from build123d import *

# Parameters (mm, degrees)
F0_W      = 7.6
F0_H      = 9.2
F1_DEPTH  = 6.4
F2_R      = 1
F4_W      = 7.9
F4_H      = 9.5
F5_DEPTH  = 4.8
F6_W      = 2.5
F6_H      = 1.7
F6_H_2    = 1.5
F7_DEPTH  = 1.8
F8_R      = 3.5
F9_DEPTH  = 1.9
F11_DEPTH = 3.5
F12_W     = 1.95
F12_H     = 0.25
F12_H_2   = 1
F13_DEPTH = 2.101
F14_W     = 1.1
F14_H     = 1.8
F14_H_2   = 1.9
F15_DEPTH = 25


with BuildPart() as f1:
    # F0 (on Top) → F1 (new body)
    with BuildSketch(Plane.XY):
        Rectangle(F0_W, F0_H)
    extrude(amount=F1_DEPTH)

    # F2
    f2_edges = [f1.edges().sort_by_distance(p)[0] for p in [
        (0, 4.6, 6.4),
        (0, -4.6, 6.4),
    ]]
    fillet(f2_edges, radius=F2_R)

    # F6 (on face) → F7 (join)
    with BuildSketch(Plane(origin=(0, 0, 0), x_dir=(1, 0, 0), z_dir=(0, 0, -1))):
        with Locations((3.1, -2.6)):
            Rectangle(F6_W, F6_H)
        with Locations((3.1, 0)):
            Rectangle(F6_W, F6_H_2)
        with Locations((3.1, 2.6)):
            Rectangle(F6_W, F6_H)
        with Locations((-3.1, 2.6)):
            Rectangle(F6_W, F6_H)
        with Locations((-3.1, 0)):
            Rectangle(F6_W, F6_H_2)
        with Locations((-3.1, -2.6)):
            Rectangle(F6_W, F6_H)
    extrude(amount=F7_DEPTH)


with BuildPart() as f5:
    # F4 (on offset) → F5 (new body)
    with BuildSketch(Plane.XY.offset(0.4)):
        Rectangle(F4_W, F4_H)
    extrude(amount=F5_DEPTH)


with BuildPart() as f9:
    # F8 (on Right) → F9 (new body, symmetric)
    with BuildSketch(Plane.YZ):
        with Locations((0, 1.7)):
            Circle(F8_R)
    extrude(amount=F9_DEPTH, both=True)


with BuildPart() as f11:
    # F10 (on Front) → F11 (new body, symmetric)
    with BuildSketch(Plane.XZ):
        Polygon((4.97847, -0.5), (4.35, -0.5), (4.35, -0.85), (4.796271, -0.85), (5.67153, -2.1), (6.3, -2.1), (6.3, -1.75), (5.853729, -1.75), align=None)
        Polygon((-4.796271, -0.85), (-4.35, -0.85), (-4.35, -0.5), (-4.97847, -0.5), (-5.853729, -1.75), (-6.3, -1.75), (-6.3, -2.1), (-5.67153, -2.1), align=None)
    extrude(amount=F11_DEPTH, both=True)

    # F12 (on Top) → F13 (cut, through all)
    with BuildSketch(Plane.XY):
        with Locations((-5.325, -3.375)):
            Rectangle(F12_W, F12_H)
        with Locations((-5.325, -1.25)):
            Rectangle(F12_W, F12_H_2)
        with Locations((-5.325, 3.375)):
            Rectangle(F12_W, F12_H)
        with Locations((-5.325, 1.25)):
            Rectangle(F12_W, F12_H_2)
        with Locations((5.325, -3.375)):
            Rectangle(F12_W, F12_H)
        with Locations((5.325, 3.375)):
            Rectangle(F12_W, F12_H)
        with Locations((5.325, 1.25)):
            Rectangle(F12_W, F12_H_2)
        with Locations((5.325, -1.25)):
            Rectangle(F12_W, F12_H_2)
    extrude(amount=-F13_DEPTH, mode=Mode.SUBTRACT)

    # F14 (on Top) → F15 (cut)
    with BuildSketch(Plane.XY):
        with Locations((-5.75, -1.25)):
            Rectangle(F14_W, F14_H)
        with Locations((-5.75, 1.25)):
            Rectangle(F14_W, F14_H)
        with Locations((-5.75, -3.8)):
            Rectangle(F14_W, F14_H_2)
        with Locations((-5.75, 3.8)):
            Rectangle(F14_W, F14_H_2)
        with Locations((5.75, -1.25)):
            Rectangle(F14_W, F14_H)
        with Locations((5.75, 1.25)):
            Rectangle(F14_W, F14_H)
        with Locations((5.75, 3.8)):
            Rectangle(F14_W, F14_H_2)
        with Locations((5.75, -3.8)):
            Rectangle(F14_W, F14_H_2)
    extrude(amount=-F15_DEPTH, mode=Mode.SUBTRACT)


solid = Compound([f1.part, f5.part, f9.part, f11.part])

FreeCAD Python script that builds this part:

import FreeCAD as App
import Part
import Sketcher

V = App.Vector
Q = App.Units.Quantity


def edges_at(feature, points):
    """Names of the edges that pass closest to the given points."""
    edges = feature.Shape.Edges
    near = lambda p: min(range(len(edges)), key=lambda i: edges[i].distToShape(Part.Vertex(*p))[0])
    return sorted({f"Edge{near(p) + 1}" for p in points})


def add_polygon(sketch, points):
    """Adds a closed chain of lines whose ends are joined by coincident constraints."""
    first, n = sketch.GeometryCount, len(points)
    for a, b in zip(points, points[1:] + points[:1]):
        sketch.addGeometry(Part.LineSegment(App.Vector(*a, 0), App.Vector(*b, 0)), False)
    for i in range(n):
        sketch.addConstraint(Sketcher.Constraint("Coincident", first + i, 2, first + (i + 1) % n, 1))

doc = App.newDocument("Part")
body = doc.addObject("PartDesign::Body", "Body")

sketch1 = body.newObject("Sketcher::SketchObject", "Sketch")
sketch1.AttachmentSupport = (doc.getObject("XY_Plane"), [""])
sketch1.MapMode = "FlatFace"
add_polygon(sketch1, [(-4, 5), (-4, -5), (4, -5), (4, 5)])
sketch1.addConstraint([
    Sketcher.Constraint("Vertical", 0),
    Sketcher.Constraint("Horizontal", 1),
    Sketcher.Constraint("Vertical", 2),
    Sketcher.Constraint("Horizontal", 3),
    Sketcher.Constraint("Symmetric", 0, 2, 2, 2, -1, 1),
    Sketcher.Constraint("DistanceX", 1, 1, 1, 2, 7.6),
    Sketcher.Constraint("DistanceY", 0, 2, 0, 1, 9.2),
])
pad1 = body.newObject("PartDesign::Pad", "Pad")
pad1.Profile = sketch1
pad1.Length = 6.4
doc.recompute()

fillet = body.newObject("PartDesign::Fillet", "Fillet")
fillet.Base = (pad1, edges_at(pad1, [(0, 4.6, 6.4), (0, -4.6, 6.4)]))
fillet.Radius = 1

sketch2 = body.newObject("Sketcher::SketchObject", "Sketch001")
sketch2.AttachmentSupport = (doc.getObject("XY_Plane"), [""])
sketch2.MapMode = "FlatFace"
add_polygon(sketch2, [(1.9, 1.8), (1.9, 3.5), (4.3, 3.5), (4.3, 1.8)])
add_polygon(sketch2, [(1.9, -0.8), (1.9, 0.8), (4.3, 0.8), (4.3, -0.8)])
add_polygon(sketch2, [(1.9, -3.5), (1.9, -1.8), (4.3, -1.8), (4.3, -3.5)])
add_polygon(sketch2, [(-4.3, -3.5), (-4.3, -1.8), (-1.9, -1.8), (-1.9, -3.5)])
add_polygon(sketch2, [(-4.3, -0.8), (-4.3, 0.8), (-1.9, 0.8), (-1.9, -0.8)])
add_polygon(sketch2, [(-4.3, 1.8), (-4.3, 3.5), (-1.9, 3.5), (-1.9, 1.8)])
sketch2.addConstraint([
    Sketcher.Constraint("Vertical", 0),
    Sketcher.Constraint("Horizontal", 1),
    Sketcher.Constraint("Vertical", 2),
    Sketcher.Constraint("Horizontal", 3),
    Sketcher.Constraint("Vertical", 4),
    Sketcher.Constraint("Horizontal", 5),
    Sketcher.Constraint("Vertical", 6),
    Sketcher.Constraint("Horizontal", 7),
    Sketcher.Constraint("Vertical", 8),
    Sketcher.Constraint("Horizontal", 9),
    Sketcher.Constraint("Vertical", 10),
    Sketcher.Constraint("Horizontal", 11),
    Sketcher.Constraint("Vertical", 12),
    Sketcher.Constraint("Horizontal", 13),
    Sketcher.Constraint("Vertical", 14),
    Sketcher.Constraint("Horizontal", 15),
    Sketcher.Constraint("Vertical", 16),
    Sketcher.Constraint("Horizontal", 17),
    Sketcher.Constraint("Vertical", 18),
    Sketcher.Constraint("Horizontal", 19),
    Sketcher.Constraint("Vertical", 20),
    Sketcher.Constraint("Horizontal", 21),
    Sketcher.Constraint("Vertical", 22),
    Sketcher.Constraint("Horizontal", 23),
    Sketcher.Constraint("Symmetric", 2, 2, 12, 2, -1, 1),
    Sketcher.Constraint("Symmetric", 0, 2, 14, 2, -1, 1),
    Sketcher.Constraint("Symmetric", 6, 2, 16, 2, -1, 1),
    Sketcher.Constraint("Symmetric", 4, 2, 18, 2, -1, 1),
    Sketcher.Constraint("Symmetric", 10, 2, 20, 2, -1, 1),
    Sketcher.Constraint("Symmetric", 8, 2, 22, 2, -1, 1),
    Sketcher.Constraint("Symmetric", 9, 2, 12, 2, -2),
    Sketcher.Constraint("Symmetric", 11, 2, 14, 2, -2),
    Sketcher.Constraint("Horizontal", 5, 2, 16, 2),
    Sketcher.Constraint("Vertical", 3, 2, 4, 2),
    Sketcher.Constraint("Vertical", 2, 2, 5, 2),
    Sketcher.Constraint("DistanceX", 1, 1, 1, 2, 2.5),
    Sketcher.Constraint("DistanceY", 0, 1, 0, 2, 1.7),
    Sketcher.Constraint("DistanceY", 4, 1, 4, 2, 1.5),
    Sketcher.Constraint("DistanceY", 4, 2, 3, 2, 1.0),
    Sketcher.Constraint("DistanceX", 12, 2, 8, 2, 6.2),
])
pad2 = body.newObject("PartDesign::Pad", "Pad001")
pad2.Profile = sketch2
pad2.Length = 1.8
pad2.Reversed = True
body2 = doc.addObject("PartDesign::Body", "Body001")

sketch3 = body2.newObject("Sketcher::SketchObject", "Sketch002")
sketch3.AttachmentSupport = (doc.getObject("XY_Plane001"), [""])
sketch3.MapMode = "FlatFace"
sketch3.AttachmentOffset = App.Placement(V(0, 0, 0.4), App.Rotation())
add_polygon(sketch3, [(-4, 5), (-4, -5), (4, -5), (4, 5)])
sketch3.addConstraint([
    Sketcher.Constraint("Vertical", 0),
    Sketcher.Constraint("Horizontal", 1),
    Sketcher.Constraint("Vertical", 2),
    Sketcher.Constraint("Horizontal", 3),
    Sketcher.Constraint("Symmetric", 0, 2, 2, 2, -1, 1),
    Sketcher.Constraint("DistanceX", 1, 1, 1, 2, 7.9),
    Sketcher.Constraint("DistanceY", 0, 2, 0, 1, 9.5),
])
pad3 = body2.newObject("PartDesign::Pad", "Pad002")
pad3.Profile = sketch3
pad3.Length = 4.8
body3 = doc.addObject("PartDesign::Body", "Body002")

sketch4 = body3.newObject("Sketcher::SketchObject", "Sketch003")
sketch4.AttachmentSupport = (doc.getObject("YZ_Plane002"), [""])
sketch4.MapMode = "FlatFace"
sketch4.addGeometry(Part.Circle(V(0, 1.7, 0), V(0, 0, 1), 3.5), False)
sketch4.addConstraint([
    Sketcher.Constraint("PointOnObject", 0, 3, -2),
    Sketcher.Constraint("Diameter", 0, 7.0),
    Sketcher.Constraint("DistanceY", -1, 1, 0, 3, 1.7),
])
pad4 = body3.newObject("PartDesign::Pad", "Pad003")
pad4.Profile = sketch4
pad4.Length = 3.8
pad4.Midplane = True
body4 = doc.addObject("PartDesign::Body", "Body003")
body4.AllowCompound = True

sketch5 = body4.newObject("Sketcher::SketchObject", "Sketch004")
sketch5.AttachmentSupport = (doc.getObject("XZ_Plane003"), [""])
sketch5.MapMode = "FlatFace"
add_polygon(sketch5, [(4.98, -0.5), (4.35, -0.5), (4.35, -0.85), (4.8, -0.85), (5.67, -2.1), (6.3, -2.1), (6.3, -1.75), (5.85, -1.75)])
add_polygon(sketch5, [(-4.8, -0.85), (-4.35, -0.85), (-4.35, -0.5), (-4.98, -0.5), (-5.85, -1.75), (-6.3, -1.75), (-6.3, -2.1), (-5.67, -2.1)])
sketch5.addConstraint([
    Sketcher.Constraint("Horizontal", 0),
    Sketcher.Constraint("Vertical", 1),
    Sketcher.Constraint("Horizontal", 2),
    Sketcher.Constraint("Horizontal", 4),
    Sketcher.Constraint("Vertical", 5),
    Sketcher.Constraint("Horizontal", 6),
    Sketcher.Constraint("Horizontal", 8),
    Sketcher.Constraint("Vertical", 9),
    Sketcher.Constraint("Horizontal", 10),
    Sketcher.Constraint("Horizontal", 12),
    Sketcher.Constraint("Vertical", 13),
    Sketcher.Constraint("Horizontal", 14),
    Sketcher.Constraint("Symmetric", 1, 2, 8, 2, -2),
    Sketcher.Constraint("Symmetric", 7, 2, 10, 2, -2),
    Sketcher.Constraint("Symmetric", 6, 2, 11, 2, -2),
    Sketcher.Constraint("Symmetric", 4, 2, 13, 2, -2),
    Sketcher.Constraint("Parallel", 3, 7),
    Sketcher.Constraint("Parallel", 11, 15),
    Sketcher.Constraint("Equal", 0, 4),
    Sketcher.Constraint("Equal", 2, 6),
    Sketcher.Constraint("Equal", 6, 8),
    Sketcher.Constraint("Angle", 3, Q("-55.000013 deg")),
    Sketcher.Constraint("DistanceY", 1, 2, 1, 1, 0.35),
    Sketcher.Constraint("DistanceY", 0, 2, -1, 1, 0.5),
    Sketcher.Constraint("DistanceY", 3, 2, -1, 1, 2.1),
    Sketcher.Constraint("DistanceX", -1, 1, 4, 2, 6.3),
    Sketcher.Constraint("DistanceX", 8, 2, 1, 2, 8.7),
    Sketcher.Constraint("DistanceX", 0, 2, 0, 1, 0.62847),
])
pad5 = body4.newObject("PartDesign::Pad", "Pad004")
pad5.Profile = sketch5
pad5.Length = 7
pad5.Midplane = True

sketch6 = body4.newObject("Sketcher::SketchObject", "Sketch005")
sketch6.AttachmentSupport = (doc.getObject("XY_Plane003"), [""])
sketch6.MapMode = "FlatFace"
add_polygon(sketch6, [(-6.3, -3.25), (-6.3, -3.5), (-4.35, -3.5), (-4.35, -3.25)])
add_polygon(sketch6, [(-6.3, -0.75), (-6.3, -1.75), (-4.35, -1.75), (-4.35, -0.75)])
add_polygon(sketch6, [(-6.3, 3.5), (-6.3, 3.25), (-4.35, 3.25), (-4.35, 3.5)])
add_polygon(sketch6, [(-6.3, 1.75), (-6.3, 0.75), (-4.35, 0.75), (-4.35, 1.75)])
add_polygon(sketch6, [(4.35, -3.25), (4.35, -3.5), (6.3, -3.5), (6.3, -3.25)])
add_polygon(sketch6, [(4.35, 3.5), (4.35, 3.25), (6.3, 3.25), (6.3, 3.5)])
add_polygon(sketch6, [(4.35, 1.75), (4.35, 0.75), (6.3, 0.75), (6.3, 1.75)])
add_polygon(sketch6, [(4.35, -0.75), (4.35, -1.75), (6.3, -1.75), (6.3, -0.75)])
sketch6.addConstraint([
    Sketcher.Constraint("Vertical", 0),
    Sketcher.Constraint("Horizontal", 1),
    Sketcher.Constraint("Vertical", 2),
    Sketcher.Constraint("Horizontal", 3),
    Sketcher.Constraint("Vertical", 4),
    Sketcher.Constraint("Horizontal", 5),
    Sketcher.Constraint("Vertical", 6),
    Sketcher.Constraint("Horizontal", 7),
    Sketcher.Constraint("Vertical", 8),
    Sketcher.Constraint("Horizontal", 9),
    Sketcher.Constraint("Vertical", 10),
    Sketcher.Constraint("Horizontal", 11),
    Sketcher.Constraint("Vertical", 12),
    Sketcher.Constraint("Horizontal", 13),
    Sketcher.Constraint("Vertical", 14),
    Sketcher.Constraint("Horizontal", 15),
    Sketcher.Constraint("Vertical", 16),
    Sketcher.Constraint("Horizontal", 17),
    Sketcher.Constraint("Vertical", 18),
    Sketcher.Constraint("Horizontal", 19),
    Sketcher.Constraint("Vertical", 20),
    Sketcher.Constraint("Horizontal", 21),
    Sketcher.Constraint("Vertical", 22),
    Sketcher.Constraint("Horizontal", 23),
    Sketcher.Constraint("Vertical", 24),
    Sketcher.Constraint("Horizontal", 25),
    Sketcher.Constraint("Vertical", 26),
    Sketcher.Constraint("Horizontal", 27),
    Sketcher.Constraint("Vertical", 28),
    Sketcher.Constraint("Horizontal", 29),
    Sketcher.Constraint("Vertical", 30),
    Sketcher.Constraint("Horizontal", 31),
    Sketcher.Constraint("Symmetric", 10, 2, 16, 2, -1, 1),
    Sketcher.Constraint("Symmetric", 8, 2, 18, 2, -1, 1),
    Sketcher.Constraint("Symmetric", 2, 2, 20, 2, -1, 1),
    Sketcher.Constraint("Symmetric", 0, 2, 22, 2, -1, 1),
    Sketcher.Constraint("Symmetric", 6, 2, 24, 2, -1, 1),
    Sketcher.Constraint("Symmetric", 4, 2, 26, 2, -1, 1),
    Sketcher.Constraint("Symmetric", 14, 2, 28, 2, -1, 1),
    Sketcher.Constraint("Symmetric", 12, 2, 30, 2, -1, 1),
    Sketcher.Constraint("Symmetric", 1, 2, 16, 2, -2),
    Sketcher.Constraint("Symmetric", 3, 2, 18, 2, -2),
    Sketcher.Constraint("Symmetric", 13, 2, 24, 2, -2),
    Sketcher.Constraint("Symmetric", 15, 2, 26, 2, -2),
    Sketcher.Constraint("Vertical", 3, 2, 4, 2),
    Sketcher.Constraint("Vertical", 2, 2, 5, 2),
    Sketcher.Constraint("DistanceY", 4, 2, 4, 1, 1.0),
    Sketcher.Constraint("DistanceY", 7, 2, 8, 2, 4.0),
    Sketcher.Constraint("DistanceY", 17, 2, 22, 2, 7.0),
    Sketcher.Constraint("DistanceX", 1, 1, 1, 2, 1.95),
    Sketcher.Constraint("DistanceY", 0, 2, 0, 1, 0.25),
    Sketcher.Constraint("DistanceX", 0, 2, -1, 1, 6.3),
])
pocket1 = body4.newObject("PartDesign::Pocket", "Pocket")
pocket1.Profile = sketch6
pocket1.Type = "ThroughAll"

sketch7 = body4.newObject("Sketcher::SketchObject", "Sketch006")
sketch7.AttachmentSupport = (doc.getObject("XY_Plane003"), [""])
sketch7.MapMode = "FlatFace"
add_polygon(sketch7, [(-6.3, -0.3), (-6.3, -2.1), (-5.2, -2.1), (-5.2, -0.3)])
add_polygon(sketch7, [(-6.3, 2.1), (-6.3, 0.3), (-5.2, 0.3), (-5.2, 2.1)])
add_polygon(sketch7, [(-6.3, -2.9), (-6.3, -4.8), (-5.2, -4.8), (-5.2, -2.9)])
add_polygon(sketch7, [(-6.3, 4.8), (-6.3, 2.9), (-5.2, 2.9), (-5.2, 4.8)])
add_polygon(sketch7, [(5.2, -0.3), (5.2, -2.1), (6.3, -2.1), (6.3, -0.3)])
add_polygon(sketch7, [(5.2, 2.1), (5.2, 0.3), (6.3, 0.3), (6.3, 2.1)])
add_polygon(sketch7, [(5.2, 4.8), (5.2, 2.9), (6.3, 2.9), (6.3, 4.8)])
add_polygon(sketch7, [(5.2, -2.9), (5.2, -4.8), (6.3, -4.8), (6.3, -2.9)])
sketch7.addConstraint([
    Sketcher.Constraint("Vertical", 0),
    Sketcher.Constraint("Horizontal", 1),
    Sketcher.Constraint("Vertical", 2),
    Sketcher.Constraint("Horizontal", 3),
    Sketcher.Constraint("Vertical", 4),
    Sketcher.Constraint("Horizontal", 5),
    Sketcher.Constraint("Vertical", 6),
    Sketcher.Constraint("Horizontal", 7),
    Sketcher.Constraint("Vertical", 8),
    Sketcher.Constraint("Horizontal", 9),
    Sketcher.Constraint("Vertical", 10),
    Sketcher.Constraint("Horizontal", 11),
    Sketcher.Constraint("Vertical", 12),
    Sketcher.Constraint("Horizontal", 13),
    Sketcher.Constraint("Vertical", 14),
    Sketcher.Constraint("Horizontal", 15),
    Sketcher.Constraint("Vertical", 16),
    Sketcher.Constraint("Horizontal", 17),
    Sketcher.Constraint("Vertical", 18),
    Sketcher.Constraint("Horizontal", 19),
    Sketcher.Constraint("Vertical", 20),
    Sketcher.Constraint("Horizontal", 21),
    Sketcher.Constraint("Vertical", 22),
    Sketcher.Constraint("Horizontal", 23),
    Sketcher.Constraint("Vertical", 24),
    Sketcher.Constraint("Horizontal", 25),
    Sketcher.Constraint("Vertical", 26),
    Sketcher.Constraint("Horizontal", 27),
    Sketcher.Constraint("Vertical", 28),
    Sketcher.Constraint("Horizontal", 29),
    Sketcher.Constraint("Vertical", 30),
    Sketcher.Constraint("Horizontal", 31),
    Sketcher.Constraint("Symmetric", 6, 2, 16, 2, -1, 1),
    Sketcher.Constraint("Symmetric", 4, 2, 18, 2, -1, 1),
    Sketcher.Constraint("Symmetric", 2, 2, 20, 2, -1, 1),
    Sketcher.Constraint("Symmetric", 0, 2, 22, 2, -1, 1),
    Sketcher.Constraint("Symmetric", 10, 2, 24, 2, -1, 1),
    Sketcher.Constraint("Symmetric", 8, 2, 26, 2, -1, 1),
    Sketcher.Constraint("Symmetric", 14, 2, 28, 2, -1, 1),
    Sketcher.Constraint("Symmetric", 12, 2, 30, 2, -1, 1),
    Sketcher.Constraint("Symmetric", 1, 2, 16, 2, -2),
    Sketcher.Constraint("Symmetric", 3, 2, 18, 2, -2),
    Sketcher.Constraint("Symmetric", 13, 2, 24, 2, -2),
    Sketcher.Constraint("Symmetric", 15, 2, 26, 2, -2),
    Sketcher.Constraint("Vertical", 7, 2, 8, 2),
    Sketcher.Constraint("Vertical", 6, 2, 9, 2),
    Sketcher.Constraint("DistanceX", 1, 1, 1, 2, 1.1),
    Sketcher.Constraint("DistanceY", 0, 2, 0, 1, 1.8),
    Sketcher.Constraint("DistanceY", 8, 2, 8, 1, 1.9),
    Sketcher.Constraint("DistanceX", 0, 2, -1, 1, 6.3),
    Sketcher.Constraint("DistanceY", 3, 2, 4, 2, 0.7),
    Sketcher.Constraint("DistanceY", 8, 2, 0, 2, 2.6),
])
pocket2 = body4.newObject("PartDesign::Pocket", "Pocket001")
pocket2.Profile = sketch7
pocket2.Length = 25

doc.recompute()
